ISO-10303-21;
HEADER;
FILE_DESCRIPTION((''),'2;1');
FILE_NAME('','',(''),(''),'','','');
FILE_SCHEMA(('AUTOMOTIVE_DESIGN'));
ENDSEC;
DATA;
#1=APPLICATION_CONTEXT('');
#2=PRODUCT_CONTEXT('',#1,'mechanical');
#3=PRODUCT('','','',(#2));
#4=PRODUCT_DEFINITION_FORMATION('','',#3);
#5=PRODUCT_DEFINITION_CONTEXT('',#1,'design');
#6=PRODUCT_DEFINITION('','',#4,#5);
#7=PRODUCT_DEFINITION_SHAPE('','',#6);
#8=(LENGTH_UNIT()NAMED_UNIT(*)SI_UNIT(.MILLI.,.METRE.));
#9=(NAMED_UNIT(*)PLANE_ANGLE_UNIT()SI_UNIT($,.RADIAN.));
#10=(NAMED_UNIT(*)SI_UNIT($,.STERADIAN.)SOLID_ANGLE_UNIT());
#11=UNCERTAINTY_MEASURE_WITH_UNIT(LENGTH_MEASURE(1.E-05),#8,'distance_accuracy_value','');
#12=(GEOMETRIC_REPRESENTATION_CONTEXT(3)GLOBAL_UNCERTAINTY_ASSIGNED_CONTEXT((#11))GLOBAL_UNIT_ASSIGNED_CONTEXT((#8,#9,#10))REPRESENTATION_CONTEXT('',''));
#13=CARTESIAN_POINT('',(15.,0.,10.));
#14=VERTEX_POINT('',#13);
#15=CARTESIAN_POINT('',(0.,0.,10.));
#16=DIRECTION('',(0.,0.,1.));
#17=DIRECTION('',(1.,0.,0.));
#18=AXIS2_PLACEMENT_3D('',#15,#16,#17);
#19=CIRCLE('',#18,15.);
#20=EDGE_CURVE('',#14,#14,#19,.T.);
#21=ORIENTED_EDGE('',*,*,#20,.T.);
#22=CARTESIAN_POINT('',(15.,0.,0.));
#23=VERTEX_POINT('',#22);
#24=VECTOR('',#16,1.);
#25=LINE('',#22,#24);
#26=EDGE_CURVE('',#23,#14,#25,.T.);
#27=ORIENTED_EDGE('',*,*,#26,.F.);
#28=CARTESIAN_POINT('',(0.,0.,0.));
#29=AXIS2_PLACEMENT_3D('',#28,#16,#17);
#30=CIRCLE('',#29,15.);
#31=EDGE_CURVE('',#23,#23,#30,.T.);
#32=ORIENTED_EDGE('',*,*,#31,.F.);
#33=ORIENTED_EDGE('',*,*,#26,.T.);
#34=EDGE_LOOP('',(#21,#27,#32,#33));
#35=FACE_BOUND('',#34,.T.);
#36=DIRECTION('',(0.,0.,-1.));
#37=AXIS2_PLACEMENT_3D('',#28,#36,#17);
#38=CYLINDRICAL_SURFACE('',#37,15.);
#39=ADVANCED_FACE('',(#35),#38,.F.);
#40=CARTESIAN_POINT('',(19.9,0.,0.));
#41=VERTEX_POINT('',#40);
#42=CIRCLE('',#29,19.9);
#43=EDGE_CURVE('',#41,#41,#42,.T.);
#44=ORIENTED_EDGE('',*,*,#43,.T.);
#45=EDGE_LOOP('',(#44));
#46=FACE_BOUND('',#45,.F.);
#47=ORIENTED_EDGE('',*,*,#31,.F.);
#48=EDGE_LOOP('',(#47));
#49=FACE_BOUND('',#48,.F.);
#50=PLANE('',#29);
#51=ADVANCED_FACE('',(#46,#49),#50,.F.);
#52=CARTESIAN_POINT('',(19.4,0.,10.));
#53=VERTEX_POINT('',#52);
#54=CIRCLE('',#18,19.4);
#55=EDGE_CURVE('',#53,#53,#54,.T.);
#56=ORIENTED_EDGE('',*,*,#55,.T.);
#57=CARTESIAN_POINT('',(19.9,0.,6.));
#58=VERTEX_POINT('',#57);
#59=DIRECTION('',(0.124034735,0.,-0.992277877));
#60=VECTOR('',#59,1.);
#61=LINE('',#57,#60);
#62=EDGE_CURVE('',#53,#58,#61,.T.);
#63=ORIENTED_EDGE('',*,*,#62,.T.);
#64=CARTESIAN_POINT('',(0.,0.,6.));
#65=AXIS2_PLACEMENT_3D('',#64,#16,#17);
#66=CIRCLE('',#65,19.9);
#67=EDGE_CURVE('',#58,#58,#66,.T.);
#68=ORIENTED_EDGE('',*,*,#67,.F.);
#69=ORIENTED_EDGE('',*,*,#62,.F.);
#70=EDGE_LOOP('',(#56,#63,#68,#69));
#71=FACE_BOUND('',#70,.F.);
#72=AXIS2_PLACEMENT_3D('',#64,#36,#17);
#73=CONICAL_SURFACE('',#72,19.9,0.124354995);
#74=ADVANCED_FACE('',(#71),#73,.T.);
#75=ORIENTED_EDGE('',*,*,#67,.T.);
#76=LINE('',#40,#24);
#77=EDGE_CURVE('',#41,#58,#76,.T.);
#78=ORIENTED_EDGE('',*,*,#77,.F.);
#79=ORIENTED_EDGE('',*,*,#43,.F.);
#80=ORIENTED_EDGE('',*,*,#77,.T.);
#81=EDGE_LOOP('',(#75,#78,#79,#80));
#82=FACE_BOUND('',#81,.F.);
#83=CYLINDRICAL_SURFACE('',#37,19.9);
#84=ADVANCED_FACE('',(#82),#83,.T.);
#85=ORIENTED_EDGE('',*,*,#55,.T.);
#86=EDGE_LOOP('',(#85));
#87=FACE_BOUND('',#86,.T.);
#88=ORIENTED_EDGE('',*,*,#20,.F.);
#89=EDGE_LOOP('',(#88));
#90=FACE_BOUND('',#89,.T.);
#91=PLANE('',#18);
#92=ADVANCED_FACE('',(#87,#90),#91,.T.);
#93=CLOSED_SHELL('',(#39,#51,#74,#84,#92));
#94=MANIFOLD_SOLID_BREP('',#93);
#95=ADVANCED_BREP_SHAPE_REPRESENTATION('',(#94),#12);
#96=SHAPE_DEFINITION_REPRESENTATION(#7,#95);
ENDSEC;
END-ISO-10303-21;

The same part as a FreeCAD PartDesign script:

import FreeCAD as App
import Part
import Sketcher

V = App.Vector


def edges_at(feature, points):
    """Names of the edges that pass closest to the given points."""
    edges = feature.Shape.Edges
    near = lambda p: min(range(len(edges)), key=lambda i: edges[i].distToShape(Part.Vertex(*p))[0])
    return sorted({f"Edge{near(p) + 1}" for p in points})

doc = App.newDocument("Part")
body = doc.addObject("PartDesign::Body", "Body")

sketch1 = body.newObject("Sketcher::SketchObject", "Sketch")
sketch1.AttachmentSupport = (doc.getObject("XY_Plane"), [""])
sketch1.MapMode = "FlatFace"
sketch1.addGeometry(Part.Circle(V(0, 0, 0), V(0, 0, 1), 20), False)
sketch1.addGeometry(Part.Circle(V(0, 0, 0), V(0, 0, 1), 15), False)
sketch1.addConstraint(Sketcher.Constraint("Coincident", 0, 3, -1, 1))
sketch1.addConstraint(Sketcher.Constraint("Coincident", 1, 3, -1, 1))
sketch1.addConstraint(Sketcher.Constraint("Diameter", 1, 30.0))
sketch1.addConstraint(Sketcher.Constraint("Diameter", 0, 39.8))
pad1 = body.newObject("PartDesign::Pad", "Pad")
pad1.Profile = sketch1
pad1.Length = 10
doc.recompute()

chamfer = body.newObject("PartDesign::Chamfer", "Chamfer")
chamfer.Base = (pad1, edges_at(pad1, [(-19.9, 0, 10)]))
chamfer.ChamferType = "Two distances"
chamfer.Size = 0.5
chamfer.Size2 = 4
chamfer.FlipDirection = True

doc.recompute()
